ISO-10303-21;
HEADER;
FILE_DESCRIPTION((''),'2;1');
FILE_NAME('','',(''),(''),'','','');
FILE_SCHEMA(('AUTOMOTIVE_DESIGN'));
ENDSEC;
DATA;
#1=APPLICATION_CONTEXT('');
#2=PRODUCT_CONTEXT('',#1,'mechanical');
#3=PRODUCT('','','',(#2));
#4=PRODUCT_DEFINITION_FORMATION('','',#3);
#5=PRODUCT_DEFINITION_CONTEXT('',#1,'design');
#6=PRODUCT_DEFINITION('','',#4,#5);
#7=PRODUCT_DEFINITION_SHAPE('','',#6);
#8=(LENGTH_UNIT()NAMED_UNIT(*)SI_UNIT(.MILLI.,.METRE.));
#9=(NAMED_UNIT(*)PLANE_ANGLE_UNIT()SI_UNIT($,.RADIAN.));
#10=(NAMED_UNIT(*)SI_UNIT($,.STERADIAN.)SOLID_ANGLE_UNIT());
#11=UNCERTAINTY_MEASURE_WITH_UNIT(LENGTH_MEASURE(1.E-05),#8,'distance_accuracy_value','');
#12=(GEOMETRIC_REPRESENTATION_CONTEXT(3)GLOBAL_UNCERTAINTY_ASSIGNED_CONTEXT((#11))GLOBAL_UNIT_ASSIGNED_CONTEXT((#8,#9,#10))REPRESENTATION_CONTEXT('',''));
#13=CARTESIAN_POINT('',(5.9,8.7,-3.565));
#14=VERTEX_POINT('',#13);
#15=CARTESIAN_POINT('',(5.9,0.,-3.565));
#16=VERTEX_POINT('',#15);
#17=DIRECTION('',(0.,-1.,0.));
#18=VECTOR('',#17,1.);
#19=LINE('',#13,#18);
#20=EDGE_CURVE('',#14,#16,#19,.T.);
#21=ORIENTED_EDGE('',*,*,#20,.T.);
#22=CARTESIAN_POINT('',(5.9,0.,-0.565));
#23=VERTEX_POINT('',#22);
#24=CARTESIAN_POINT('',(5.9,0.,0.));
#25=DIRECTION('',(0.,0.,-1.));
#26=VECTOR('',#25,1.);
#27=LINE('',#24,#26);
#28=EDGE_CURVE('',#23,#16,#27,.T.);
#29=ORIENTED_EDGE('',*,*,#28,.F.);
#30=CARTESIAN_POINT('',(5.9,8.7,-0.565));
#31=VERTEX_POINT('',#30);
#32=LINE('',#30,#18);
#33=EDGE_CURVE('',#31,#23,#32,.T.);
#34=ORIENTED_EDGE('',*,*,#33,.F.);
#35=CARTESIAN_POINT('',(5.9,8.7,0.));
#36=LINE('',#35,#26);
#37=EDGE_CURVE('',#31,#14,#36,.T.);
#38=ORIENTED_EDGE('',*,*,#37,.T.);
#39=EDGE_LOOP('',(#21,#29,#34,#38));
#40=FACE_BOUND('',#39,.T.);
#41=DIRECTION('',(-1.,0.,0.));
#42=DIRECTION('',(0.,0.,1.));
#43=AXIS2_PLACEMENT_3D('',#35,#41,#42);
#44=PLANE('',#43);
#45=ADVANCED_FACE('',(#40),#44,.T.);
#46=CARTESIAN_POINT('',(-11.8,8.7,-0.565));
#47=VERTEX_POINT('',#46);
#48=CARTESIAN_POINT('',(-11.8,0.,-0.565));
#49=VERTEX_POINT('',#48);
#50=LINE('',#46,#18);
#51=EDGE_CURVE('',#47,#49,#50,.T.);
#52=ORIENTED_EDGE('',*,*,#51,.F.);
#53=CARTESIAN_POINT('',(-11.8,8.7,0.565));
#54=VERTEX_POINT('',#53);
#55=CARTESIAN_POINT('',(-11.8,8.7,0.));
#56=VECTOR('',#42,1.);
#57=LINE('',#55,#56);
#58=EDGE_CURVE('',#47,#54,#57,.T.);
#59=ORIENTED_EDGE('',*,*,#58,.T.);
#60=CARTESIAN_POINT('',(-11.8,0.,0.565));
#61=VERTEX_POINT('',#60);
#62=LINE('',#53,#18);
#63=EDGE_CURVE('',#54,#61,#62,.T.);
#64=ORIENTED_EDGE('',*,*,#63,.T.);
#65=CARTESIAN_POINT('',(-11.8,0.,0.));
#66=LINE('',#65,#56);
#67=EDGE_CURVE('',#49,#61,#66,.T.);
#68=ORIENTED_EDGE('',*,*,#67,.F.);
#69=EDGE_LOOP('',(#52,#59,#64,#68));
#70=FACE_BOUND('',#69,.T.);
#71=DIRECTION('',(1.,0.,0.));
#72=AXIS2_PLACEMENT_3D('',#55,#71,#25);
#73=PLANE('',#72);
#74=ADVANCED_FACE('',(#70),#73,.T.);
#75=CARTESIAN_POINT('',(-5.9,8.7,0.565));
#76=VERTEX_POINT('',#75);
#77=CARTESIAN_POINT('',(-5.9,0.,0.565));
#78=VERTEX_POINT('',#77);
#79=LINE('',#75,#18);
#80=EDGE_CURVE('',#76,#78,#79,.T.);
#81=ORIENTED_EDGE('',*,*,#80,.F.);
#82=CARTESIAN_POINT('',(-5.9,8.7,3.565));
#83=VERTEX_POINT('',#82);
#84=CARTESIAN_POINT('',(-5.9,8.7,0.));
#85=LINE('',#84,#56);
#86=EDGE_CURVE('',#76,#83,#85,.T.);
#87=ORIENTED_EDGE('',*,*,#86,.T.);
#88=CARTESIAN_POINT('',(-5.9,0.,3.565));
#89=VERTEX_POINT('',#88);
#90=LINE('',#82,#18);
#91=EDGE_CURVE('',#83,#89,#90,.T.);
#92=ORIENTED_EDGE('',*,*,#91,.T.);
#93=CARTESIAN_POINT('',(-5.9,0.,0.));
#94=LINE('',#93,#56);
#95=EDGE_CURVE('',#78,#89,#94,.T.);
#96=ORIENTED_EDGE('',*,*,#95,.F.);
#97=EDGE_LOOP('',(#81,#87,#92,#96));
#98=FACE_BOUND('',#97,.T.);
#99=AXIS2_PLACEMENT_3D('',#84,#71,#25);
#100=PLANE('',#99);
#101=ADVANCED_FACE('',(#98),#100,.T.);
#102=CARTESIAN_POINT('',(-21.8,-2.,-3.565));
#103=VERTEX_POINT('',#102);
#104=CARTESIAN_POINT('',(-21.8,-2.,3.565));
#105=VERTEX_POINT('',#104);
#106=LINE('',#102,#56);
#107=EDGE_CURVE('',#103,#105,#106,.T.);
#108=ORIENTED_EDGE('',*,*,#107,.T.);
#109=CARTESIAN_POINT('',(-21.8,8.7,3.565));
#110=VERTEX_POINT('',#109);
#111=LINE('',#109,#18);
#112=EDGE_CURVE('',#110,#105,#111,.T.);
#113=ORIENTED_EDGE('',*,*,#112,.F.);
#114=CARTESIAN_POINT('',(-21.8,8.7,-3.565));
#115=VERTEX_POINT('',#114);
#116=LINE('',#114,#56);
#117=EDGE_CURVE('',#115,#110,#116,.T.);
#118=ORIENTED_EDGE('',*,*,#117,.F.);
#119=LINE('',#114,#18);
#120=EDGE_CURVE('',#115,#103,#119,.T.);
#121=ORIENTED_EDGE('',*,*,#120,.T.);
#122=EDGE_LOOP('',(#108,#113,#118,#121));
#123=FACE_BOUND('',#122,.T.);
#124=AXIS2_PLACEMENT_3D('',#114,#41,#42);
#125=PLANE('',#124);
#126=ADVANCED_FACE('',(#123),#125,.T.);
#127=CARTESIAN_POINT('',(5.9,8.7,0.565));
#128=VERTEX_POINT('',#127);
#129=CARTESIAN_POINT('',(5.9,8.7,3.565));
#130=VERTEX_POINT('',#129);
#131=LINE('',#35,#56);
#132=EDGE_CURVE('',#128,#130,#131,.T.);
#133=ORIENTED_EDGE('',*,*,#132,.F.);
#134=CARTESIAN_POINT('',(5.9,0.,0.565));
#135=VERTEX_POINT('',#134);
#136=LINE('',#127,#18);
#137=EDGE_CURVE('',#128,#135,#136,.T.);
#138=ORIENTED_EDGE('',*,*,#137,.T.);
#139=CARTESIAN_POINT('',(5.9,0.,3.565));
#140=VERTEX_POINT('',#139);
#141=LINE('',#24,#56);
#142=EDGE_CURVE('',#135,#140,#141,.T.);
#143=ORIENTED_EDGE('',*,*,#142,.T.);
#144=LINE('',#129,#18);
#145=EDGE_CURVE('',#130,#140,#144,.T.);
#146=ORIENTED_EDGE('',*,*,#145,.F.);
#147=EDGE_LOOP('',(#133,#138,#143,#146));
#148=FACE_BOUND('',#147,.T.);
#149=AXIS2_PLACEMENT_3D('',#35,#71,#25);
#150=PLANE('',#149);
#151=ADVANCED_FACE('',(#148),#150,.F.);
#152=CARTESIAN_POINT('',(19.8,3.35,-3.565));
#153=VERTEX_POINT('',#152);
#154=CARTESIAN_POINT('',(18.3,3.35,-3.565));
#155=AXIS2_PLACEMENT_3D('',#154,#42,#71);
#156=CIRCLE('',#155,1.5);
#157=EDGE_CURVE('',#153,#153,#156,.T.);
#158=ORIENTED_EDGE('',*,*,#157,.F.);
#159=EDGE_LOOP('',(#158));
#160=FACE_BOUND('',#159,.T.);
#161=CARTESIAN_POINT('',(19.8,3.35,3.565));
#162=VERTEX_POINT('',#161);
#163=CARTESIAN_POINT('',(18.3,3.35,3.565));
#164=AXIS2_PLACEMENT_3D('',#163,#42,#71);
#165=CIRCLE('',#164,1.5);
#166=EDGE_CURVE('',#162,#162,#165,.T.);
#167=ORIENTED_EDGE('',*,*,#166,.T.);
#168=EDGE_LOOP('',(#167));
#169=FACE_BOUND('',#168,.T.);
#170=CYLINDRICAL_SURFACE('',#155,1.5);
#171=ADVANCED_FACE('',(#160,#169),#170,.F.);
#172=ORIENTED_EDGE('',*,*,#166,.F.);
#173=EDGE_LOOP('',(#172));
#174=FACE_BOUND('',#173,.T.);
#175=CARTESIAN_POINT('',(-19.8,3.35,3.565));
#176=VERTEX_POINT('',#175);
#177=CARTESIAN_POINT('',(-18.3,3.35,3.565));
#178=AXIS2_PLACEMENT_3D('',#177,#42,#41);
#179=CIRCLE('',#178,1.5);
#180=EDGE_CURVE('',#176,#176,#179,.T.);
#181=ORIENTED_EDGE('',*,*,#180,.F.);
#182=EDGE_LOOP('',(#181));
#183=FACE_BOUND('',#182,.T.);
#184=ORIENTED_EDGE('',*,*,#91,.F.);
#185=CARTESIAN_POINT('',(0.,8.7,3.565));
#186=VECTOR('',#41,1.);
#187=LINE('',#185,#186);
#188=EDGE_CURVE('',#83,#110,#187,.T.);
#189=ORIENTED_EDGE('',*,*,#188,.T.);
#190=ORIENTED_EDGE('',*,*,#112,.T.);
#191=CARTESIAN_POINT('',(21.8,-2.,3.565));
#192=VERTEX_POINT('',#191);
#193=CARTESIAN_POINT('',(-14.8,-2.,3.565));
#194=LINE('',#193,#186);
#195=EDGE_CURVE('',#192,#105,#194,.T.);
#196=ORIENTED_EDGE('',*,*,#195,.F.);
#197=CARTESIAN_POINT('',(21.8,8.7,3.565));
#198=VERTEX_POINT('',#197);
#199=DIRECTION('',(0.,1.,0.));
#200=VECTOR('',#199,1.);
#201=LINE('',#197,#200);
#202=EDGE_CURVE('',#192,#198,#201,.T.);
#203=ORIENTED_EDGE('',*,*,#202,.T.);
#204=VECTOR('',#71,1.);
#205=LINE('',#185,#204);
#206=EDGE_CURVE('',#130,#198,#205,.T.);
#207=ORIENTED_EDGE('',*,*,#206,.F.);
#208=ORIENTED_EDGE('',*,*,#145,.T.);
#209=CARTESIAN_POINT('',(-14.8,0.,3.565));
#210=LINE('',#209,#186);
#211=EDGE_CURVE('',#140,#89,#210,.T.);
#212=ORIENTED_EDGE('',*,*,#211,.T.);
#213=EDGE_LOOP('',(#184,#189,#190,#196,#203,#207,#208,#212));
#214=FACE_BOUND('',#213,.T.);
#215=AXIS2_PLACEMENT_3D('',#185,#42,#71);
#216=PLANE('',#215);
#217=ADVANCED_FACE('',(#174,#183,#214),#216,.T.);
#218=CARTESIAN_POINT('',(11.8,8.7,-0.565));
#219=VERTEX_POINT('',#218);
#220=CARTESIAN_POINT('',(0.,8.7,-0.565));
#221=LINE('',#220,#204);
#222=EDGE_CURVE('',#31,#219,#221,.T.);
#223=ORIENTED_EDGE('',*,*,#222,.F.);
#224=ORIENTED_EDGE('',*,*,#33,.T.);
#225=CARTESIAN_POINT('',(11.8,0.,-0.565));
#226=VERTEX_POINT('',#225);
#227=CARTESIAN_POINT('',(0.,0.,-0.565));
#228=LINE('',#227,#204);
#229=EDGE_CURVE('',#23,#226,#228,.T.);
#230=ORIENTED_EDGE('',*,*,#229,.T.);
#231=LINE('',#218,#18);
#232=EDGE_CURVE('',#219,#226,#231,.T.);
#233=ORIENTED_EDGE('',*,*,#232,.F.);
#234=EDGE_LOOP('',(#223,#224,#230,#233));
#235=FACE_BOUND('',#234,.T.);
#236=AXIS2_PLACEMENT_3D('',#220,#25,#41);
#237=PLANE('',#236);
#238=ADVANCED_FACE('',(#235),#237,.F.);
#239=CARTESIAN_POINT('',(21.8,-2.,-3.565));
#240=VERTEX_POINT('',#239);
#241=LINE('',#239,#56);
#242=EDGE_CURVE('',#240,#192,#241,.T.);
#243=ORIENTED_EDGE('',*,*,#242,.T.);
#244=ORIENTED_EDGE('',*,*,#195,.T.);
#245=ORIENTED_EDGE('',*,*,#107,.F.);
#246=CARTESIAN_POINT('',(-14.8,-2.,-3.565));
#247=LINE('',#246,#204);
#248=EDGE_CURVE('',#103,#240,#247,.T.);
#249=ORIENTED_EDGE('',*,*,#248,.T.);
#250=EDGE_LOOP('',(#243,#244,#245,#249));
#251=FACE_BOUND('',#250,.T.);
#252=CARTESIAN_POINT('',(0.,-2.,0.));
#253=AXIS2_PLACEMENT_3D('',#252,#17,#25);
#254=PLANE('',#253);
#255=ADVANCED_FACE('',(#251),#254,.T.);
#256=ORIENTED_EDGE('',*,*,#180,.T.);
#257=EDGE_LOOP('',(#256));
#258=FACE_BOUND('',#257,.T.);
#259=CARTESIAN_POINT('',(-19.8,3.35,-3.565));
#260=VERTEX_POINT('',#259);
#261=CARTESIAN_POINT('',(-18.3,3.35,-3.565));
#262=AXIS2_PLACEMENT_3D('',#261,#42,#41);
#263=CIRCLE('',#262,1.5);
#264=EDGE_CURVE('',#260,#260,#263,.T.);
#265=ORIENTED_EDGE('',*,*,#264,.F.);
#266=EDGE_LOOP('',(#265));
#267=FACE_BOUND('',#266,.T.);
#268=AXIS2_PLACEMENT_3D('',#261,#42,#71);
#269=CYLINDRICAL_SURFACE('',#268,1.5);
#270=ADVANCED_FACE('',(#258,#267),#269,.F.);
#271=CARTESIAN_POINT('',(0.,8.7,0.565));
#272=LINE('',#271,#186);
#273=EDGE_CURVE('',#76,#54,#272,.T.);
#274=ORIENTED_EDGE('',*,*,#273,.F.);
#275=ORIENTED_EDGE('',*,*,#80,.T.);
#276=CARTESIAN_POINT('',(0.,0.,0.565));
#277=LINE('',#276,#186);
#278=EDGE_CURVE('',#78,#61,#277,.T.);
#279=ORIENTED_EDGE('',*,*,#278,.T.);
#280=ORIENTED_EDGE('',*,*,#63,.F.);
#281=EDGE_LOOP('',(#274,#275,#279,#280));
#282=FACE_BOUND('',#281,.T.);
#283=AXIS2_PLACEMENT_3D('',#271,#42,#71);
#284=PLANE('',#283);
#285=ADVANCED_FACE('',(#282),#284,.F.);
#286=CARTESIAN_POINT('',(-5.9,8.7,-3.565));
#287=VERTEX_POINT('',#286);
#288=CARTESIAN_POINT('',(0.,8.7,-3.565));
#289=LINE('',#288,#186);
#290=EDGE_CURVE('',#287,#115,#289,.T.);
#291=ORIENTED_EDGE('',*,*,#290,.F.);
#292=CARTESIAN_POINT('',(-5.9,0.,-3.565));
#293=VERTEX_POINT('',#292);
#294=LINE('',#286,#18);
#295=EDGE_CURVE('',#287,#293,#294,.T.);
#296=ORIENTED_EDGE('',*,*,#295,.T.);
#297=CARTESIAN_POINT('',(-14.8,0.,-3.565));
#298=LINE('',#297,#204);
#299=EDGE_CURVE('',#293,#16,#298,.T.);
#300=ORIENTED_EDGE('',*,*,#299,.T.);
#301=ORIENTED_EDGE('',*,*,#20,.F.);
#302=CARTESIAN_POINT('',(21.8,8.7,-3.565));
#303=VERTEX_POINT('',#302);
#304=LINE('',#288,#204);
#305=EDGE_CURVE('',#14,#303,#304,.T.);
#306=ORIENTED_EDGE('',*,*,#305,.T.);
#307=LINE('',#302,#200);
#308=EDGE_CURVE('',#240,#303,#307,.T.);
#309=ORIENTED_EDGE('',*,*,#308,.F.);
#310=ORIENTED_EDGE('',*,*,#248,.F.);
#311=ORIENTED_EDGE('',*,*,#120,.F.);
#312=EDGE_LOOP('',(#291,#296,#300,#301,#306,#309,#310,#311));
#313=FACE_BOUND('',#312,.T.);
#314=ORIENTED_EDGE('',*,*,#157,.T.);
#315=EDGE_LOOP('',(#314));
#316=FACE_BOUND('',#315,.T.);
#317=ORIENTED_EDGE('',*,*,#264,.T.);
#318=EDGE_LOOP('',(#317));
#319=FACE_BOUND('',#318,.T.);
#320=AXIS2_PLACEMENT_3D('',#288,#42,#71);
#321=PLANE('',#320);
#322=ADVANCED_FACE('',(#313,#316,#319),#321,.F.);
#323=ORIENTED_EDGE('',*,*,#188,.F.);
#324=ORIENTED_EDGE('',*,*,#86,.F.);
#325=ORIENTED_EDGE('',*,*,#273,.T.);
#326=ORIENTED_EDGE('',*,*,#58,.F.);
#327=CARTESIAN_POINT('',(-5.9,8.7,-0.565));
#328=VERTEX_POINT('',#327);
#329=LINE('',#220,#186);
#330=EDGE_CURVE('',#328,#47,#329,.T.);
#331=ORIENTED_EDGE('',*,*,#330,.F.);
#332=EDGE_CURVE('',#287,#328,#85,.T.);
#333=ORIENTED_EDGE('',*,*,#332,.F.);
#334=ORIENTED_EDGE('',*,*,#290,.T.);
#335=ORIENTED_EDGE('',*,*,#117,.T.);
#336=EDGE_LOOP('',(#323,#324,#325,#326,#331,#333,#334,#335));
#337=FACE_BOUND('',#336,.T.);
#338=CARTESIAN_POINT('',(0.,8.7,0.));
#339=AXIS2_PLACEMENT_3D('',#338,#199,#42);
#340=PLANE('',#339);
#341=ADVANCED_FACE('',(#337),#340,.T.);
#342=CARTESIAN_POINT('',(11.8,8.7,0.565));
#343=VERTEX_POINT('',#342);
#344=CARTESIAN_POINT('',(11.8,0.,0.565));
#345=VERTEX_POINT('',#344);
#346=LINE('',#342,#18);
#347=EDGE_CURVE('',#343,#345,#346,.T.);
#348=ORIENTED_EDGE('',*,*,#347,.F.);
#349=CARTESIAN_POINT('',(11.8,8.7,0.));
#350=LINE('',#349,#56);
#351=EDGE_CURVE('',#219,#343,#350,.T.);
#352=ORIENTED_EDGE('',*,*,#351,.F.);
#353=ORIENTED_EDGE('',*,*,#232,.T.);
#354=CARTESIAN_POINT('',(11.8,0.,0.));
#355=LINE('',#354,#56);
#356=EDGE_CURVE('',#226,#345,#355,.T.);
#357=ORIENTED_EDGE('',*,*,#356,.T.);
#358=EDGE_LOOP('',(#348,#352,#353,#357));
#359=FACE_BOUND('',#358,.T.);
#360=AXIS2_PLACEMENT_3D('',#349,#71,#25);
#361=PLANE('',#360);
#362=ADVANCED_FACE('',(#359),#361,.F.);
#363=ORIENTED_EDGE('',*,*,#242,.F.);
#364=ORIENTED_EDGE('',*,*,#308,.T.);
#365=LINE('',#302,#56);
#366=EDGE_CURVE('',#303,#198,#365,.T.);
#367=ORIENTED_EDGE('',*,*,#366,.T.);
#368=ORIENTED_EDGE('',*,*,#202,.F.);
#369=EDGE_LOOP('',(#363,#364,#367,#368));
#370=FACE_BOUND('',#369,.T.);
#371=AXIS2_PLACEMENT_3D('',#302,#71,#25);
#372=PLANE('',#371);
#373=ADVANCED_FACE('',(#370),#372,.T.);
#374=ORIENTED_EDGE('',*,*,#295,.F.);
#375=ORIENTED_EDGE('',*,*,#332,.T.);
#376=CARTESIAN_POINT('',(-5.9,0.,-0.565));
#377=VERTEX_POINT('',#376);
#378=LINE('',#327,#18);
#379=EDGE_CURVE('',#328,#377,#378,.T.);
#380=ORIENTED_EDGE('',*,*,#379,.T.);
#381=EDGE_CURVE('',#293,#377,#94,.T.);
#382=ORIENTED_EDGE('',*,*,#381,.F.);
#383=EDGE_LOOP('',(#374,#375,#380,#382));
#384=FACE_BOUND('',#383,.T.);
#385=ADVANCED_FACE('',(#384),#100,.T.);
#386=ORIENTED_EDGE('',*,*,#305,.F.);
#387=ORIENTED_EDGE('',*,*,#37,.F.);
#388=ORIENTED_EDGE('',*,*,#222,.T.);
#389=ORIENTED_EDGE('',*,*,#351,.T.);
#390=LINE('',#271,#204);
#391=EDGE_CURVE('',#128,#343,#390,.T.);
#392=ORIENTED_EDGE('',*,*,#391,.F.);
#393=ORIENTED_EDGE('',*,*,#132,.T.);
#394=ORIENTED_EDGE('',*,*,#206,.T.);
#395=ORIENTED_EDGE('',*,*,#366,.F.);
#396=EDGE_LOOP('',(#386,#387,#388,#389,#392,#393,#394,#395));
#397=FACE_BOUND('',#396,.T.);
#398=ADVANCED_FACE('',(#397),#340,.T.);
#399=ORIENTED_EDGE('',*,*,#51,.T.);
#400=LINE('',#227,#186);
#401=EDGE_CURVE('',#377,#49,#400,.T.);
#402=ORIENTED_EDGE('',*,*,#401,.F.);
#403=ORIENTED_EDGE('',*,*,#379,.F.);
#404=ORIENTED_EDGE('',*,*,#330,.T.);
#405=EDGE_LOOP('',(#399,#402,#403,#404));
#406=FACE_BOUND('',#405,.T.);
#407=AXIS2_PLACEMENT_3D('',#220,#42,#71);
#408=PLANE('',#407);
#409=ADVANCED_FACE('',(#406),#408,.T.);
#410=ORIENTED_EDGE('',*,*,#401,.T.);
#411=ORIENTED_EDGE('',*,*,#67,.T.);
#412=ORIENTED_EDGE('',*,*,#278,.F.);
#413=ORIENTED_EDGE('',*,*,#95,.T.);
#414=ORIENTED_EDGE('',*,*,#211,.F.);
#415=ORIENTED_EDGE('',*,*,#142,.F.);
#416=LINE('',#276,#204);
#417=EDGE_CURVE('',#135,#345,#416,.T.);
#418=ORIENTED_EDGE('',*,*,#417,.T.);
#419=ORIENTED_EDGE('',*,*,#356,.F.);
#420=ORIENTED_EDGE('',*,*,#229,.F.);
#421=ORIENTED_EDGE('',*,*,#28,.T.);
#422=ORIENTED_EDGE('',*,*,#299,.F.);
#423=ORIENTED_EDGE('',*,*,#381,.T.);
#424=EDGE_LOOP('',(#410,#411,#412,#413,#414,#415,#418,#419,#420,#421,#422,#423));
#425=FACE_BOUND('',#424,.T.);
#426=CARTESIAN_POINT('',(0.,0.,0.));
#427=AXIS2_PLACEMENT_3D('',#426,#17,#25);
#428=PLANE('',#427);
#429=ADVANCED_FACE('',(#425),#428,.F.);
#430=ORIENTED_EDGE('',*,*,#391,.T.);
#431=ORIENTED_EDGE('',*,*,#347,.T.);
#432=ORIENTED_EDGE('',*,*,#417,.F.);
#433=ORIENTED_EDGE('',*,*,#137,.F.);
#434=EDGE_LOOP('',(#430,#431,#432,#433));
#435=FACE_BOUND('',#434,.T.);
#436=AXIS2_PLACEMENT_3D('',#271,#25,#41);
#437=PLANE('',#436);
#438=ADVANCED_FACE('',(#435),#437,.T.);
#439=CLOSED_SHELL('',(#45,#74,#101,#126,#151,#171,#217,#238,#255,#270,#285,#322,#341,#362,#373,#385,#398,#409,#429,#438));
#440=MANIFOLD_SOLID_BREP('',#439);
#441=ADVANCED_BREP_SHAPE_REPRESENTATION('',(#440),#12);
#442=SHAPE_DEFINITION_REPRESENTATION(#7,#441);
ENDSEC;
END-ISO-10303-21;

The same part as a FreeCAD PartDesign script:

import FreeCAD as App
import Part
import Sketcher

V = App.Vector


def add_polygon(sketch, points):
    """Adds a closed chain of lines whose ends are joined by coincident constraints."""
    first, n = sketch.GeometryCount, len(points)
    for a, b in zip(points, points[1:] + points[:1]):
        sketch.addGeometry(Part.LineSegment(App.Vector(*a, 0), App.Vector(*b, 0)), False)
    for i in range(n):
        sketch.addConstraint(Sketcher.Constraint("Coincident", first + i, 2, first + (i + 1) % n, 1))

doc = App.newDocument("Part")
body = doc.addObject("PartDesign::Body", "Body")

sketch1 = body.newObject("Sketcher::SketchObject", "Sketch")
sketch1.AttachmentSupport = (doc.getObject("XZ_Plane"), [""])
sketch1.MapMode = "FlatFace"
add_polygon(sketch1, [(-5.9, -0.6), (-5.9, -3.6), (-14.8, -3.6), (-14.8, 3.6), (-5.9, 3.6), (-5.9, 0.6), (-11.8, 0.6), (-11.8, -0.6)])
sketch1.addConstraint(Sketcher.Constraint("Vertical", 0))
sketch1.addConstraint(Sketcher.Constraint("Horizontal", 1))
sketch1.addConstraint(Sketcher.Constraint("Vertical", 2))
sketch1.addConstraint(Sketcher.Constraint("Horizontal", 3))
sketch1.addConstraint(Sketcher.Constraint("Vertical", 4))
sketch1.addConstraint(Sketcher.Constraint("Horizontal", 5))
sketch1.addConstraint(Sketcher.Constraint("Vertical", 6))
sketch1.addConstraint(Sketcher.Constraint("Horizontal", 7))
sketch1.addConstraint(Sketcher.Constraint("Symmetric", 0, 2, 3, 2, -1))
sketch1.addConstraint(Sketcher.Constraint("Equal", 0, 4))
sketch1.addConstraint(Sketcher.Constraint("DistanceY", 0, 2, 0, 1, 3.0))
sketch1.addConstraint(Sketcher.Constraint("DistanceX", 1, 2, 1, 1, 8.9))
sketch1.addConstraint(Sketcher.Constraint("DistanceX", 5, 2, 5, 1, 5.9))
sketch1.addConstraint(Sketcher.Constraint("DistanceY", 2, 1, 2, 2, 7.13))
sketch1.addConstraint(Sketcher.Constraint("DistanceX", 0, 2, -1, 1, 5.9))
pad1 = body.newObject("PartDesign::Pad", "Pad")
pad1.Profile = sketch1
pad1.Length = 8.7
pad1.Reversed = True
body2 = doc.addObject("PartDesign::Body", "Body001")

sketch2 = body2.newObject("Sketcher::SketchObject", "Sketch001")
sketch2.AttachmentSupport = (doc.getObject("XZ_Plane001"), [""])
sketch2.MapMode = "FlatFace"
add_polygon(sketch2, [(11.8, 0.6), (5.9, 0.6), (5.9, 3.6), (14.8, 3.6), (14.8, -3.6), (5.9, -3.6), (5.9, -0.6), (11.8, -0.6)])
sketch2.addConstraint(Sketcher.Constraint("Horizontal", 0))
sketch2.addConstraint(Sketcher.Constraint("Vertical", 1))
sketch2.addConstraint(Sketcher.Constraint("Horizontal", 2))
sketch2.addConstraint(Sketcher.Constraint("Vertical", 3))
sketch2.addConstraint(Sketcher.Constraint("Horizontal", 4))
sketch2.addConstraint(Sketcher.Constraint("Vertical", 5))
sketch2.addConstraint(Sketcher.Constraint("Horizontal", 6))
sketch2.addConstraint(Sketcher.Constraint("Vertical", 7))
sketch2.addConstraint(Sketcher.Constraint("Symmetric", 1, 2, 4, 2, -1))
sketch2.addConstraint(Sketcher.Constraint("Equal", 1, 5))
sketch2.addConstraint(Sketcher.Constraint("DistanceY", 1, 1, 1, 2, 3.0))
sketch2.addConstraint(Sketcher.Constraint("DistanceX", 0, 2, 0, 1, 5.9))
sketch2.addConstraint(Sketcher.Constraint("DistanceX", 2, 1, 2, 2, 8.9))
sketch2.addConstraint(Sketcher.Constraint("DistanceY", 3, 2, 3, 1, 7.13))
sketch2.addConstraint(Sketcher.Constraint("DistanceX", -1, 1, 0, 2, 5.9))
pad2 = body2.newObject("PartDesign::Pad", "Pad001")
pad2.Profile = sketch2
pad2.Length = 8.7
pad2.Reversed = True
body.AllowCompound = True
doc.recompute()

boolean = body.newObject("PartDesign::Boolean", "Boolean")
boolean.Type = "Fuse"
boolean.addObjects([body2])

sketch3 = body.newObject("Sketcher::SketchObject", "Sketch002")
sketch3.AttachmentSupport = (doc.getObject("XZ_Plane"), [""])
sketch3.MapMode = "FlatFace"
add_polygon(sketch3, [(-15, 4), (-15, -4), (15, -4), (15, 4)])
sketch3.addConstraint(Sketcher.Constraint("Vertical", 0))
sketch3.addConstraint(Sketcher.Constraint("Horizontal", 1))
sketch3.addConstraint(Sketcher.Constraint("Vertical", 2))
sketch3.addConstraint(Sketcher.Constraint("Horizontal", 3))
sketch3.addConstraint(Sketcher.Constraint("Symmetric", 0, 2, 2, 2, -1, 1))
sketch3.addConstraint(Sketcher.Constraint("DistanceX", 1, 1, 1, 2, 29.6))
sketch3.addConstraint(Sketcher.Constraint("DistanceY", 0, 2, 0, 1, 7.13))
pad3 = body.newObject("PartDesign::Pad", "Pad002")
pad3.Profile = sketch3
pad3.Length = 2

sketch4 = body.newObject("Sketcher::SketchObject", "Sketch003")
sketch4.AttachmentSupport = (doc.getObject("XY_Plane"), [""])
sketch4.MapMode = "FlatFace"
sketch4.AttachmentOffset = App.Placement(V(0, 0, 3.565), App.Rotation())
add_polygon(sketch4, [(14.8, 8.7), (14.8, -2), (21.8, -2), (21.8, 8.7)])
sketch4.addGeometry(Part.Circle(V(18.3, 3.4, 0), V(0, 0, 1), 1.5), False)
add_polygon(sketch4, [(-21.8, 8.7), (-21.8, -2), (-14.8, -2), (-14.8, 8.7)])
sketch4.addGeometry(Part.Circle(V(-18.3, 3.4, 0), V(0, 0, 1), 1.5), False)
sketch4.addConstraint(Sketcher.Constraint("Vertical", 0))
sketch4.addConstraint(Sketcher.Constraint("Horizontal", 1))
sketch4.addConstraint(Sketcher.Constraint("Vertical", 2))
sketch4.addConstraint(Sketcher.Constraint("Horizontal", 3))
sketch4.addConstraint(Sketcher.Constraint("Vertical", 5))
sketch4.addConstraint(Sketcher.Constraint("Horizontal", 6))
sketch4.addConstraint(Sketcher.Constraint("Vertical", 7))
sketch4.addConstraint(Sketcher.Constraint("Horizontal", 8))
sketch4.addConstraint(Sketcher.Constraint("Equal", 4, 9))
sketch4.addConstraint(Sketcher.Constraint("Symmetric", 4, 3, 9, 3, -2))
sketch4.addConstraint(Sketcher.Constraint("Symmetric", 1, 2, 5, 2, -2))
sketch4.addConstraint(Sketcher.Constraint("Symmetric", 3, 2, 7, 2, -2))
sketch4.addConstraint(Sketcher.Constraint("Diameter", 4, 3.0))
sketch4.addConstraint(Sketcher.Constraint("DistanceX", 1, 1, 1, 2, 7.0))
sketch4.addConstraint(Sketcher.Constraint("DistanceY", 0, 2, 0, 1, 10.7))
sketch4.addConstraint(Sketcher.Constraint("DistanceY", 0, 2, -1, 1, 2.0))
sketch4.addConstraint(Sketcher.Constraint("DistanceX", -1, 1, 4, 3, 18.3))
sketch4.addConstraint(Sketcher.Constraint("DistanceX", -1, 1, 0, 2, 14.8))
sketch4.addConstraint(Sketcher.Constraint("DistanceY", -1, 1, 4, 3, 3.35))
pad4 = body.newObject("PartDesign::Pad", "Pad003")
pad4.Profile = sketch4
pad4.Length = 7.13
pad4.Reversed = True

doc.recompute()
